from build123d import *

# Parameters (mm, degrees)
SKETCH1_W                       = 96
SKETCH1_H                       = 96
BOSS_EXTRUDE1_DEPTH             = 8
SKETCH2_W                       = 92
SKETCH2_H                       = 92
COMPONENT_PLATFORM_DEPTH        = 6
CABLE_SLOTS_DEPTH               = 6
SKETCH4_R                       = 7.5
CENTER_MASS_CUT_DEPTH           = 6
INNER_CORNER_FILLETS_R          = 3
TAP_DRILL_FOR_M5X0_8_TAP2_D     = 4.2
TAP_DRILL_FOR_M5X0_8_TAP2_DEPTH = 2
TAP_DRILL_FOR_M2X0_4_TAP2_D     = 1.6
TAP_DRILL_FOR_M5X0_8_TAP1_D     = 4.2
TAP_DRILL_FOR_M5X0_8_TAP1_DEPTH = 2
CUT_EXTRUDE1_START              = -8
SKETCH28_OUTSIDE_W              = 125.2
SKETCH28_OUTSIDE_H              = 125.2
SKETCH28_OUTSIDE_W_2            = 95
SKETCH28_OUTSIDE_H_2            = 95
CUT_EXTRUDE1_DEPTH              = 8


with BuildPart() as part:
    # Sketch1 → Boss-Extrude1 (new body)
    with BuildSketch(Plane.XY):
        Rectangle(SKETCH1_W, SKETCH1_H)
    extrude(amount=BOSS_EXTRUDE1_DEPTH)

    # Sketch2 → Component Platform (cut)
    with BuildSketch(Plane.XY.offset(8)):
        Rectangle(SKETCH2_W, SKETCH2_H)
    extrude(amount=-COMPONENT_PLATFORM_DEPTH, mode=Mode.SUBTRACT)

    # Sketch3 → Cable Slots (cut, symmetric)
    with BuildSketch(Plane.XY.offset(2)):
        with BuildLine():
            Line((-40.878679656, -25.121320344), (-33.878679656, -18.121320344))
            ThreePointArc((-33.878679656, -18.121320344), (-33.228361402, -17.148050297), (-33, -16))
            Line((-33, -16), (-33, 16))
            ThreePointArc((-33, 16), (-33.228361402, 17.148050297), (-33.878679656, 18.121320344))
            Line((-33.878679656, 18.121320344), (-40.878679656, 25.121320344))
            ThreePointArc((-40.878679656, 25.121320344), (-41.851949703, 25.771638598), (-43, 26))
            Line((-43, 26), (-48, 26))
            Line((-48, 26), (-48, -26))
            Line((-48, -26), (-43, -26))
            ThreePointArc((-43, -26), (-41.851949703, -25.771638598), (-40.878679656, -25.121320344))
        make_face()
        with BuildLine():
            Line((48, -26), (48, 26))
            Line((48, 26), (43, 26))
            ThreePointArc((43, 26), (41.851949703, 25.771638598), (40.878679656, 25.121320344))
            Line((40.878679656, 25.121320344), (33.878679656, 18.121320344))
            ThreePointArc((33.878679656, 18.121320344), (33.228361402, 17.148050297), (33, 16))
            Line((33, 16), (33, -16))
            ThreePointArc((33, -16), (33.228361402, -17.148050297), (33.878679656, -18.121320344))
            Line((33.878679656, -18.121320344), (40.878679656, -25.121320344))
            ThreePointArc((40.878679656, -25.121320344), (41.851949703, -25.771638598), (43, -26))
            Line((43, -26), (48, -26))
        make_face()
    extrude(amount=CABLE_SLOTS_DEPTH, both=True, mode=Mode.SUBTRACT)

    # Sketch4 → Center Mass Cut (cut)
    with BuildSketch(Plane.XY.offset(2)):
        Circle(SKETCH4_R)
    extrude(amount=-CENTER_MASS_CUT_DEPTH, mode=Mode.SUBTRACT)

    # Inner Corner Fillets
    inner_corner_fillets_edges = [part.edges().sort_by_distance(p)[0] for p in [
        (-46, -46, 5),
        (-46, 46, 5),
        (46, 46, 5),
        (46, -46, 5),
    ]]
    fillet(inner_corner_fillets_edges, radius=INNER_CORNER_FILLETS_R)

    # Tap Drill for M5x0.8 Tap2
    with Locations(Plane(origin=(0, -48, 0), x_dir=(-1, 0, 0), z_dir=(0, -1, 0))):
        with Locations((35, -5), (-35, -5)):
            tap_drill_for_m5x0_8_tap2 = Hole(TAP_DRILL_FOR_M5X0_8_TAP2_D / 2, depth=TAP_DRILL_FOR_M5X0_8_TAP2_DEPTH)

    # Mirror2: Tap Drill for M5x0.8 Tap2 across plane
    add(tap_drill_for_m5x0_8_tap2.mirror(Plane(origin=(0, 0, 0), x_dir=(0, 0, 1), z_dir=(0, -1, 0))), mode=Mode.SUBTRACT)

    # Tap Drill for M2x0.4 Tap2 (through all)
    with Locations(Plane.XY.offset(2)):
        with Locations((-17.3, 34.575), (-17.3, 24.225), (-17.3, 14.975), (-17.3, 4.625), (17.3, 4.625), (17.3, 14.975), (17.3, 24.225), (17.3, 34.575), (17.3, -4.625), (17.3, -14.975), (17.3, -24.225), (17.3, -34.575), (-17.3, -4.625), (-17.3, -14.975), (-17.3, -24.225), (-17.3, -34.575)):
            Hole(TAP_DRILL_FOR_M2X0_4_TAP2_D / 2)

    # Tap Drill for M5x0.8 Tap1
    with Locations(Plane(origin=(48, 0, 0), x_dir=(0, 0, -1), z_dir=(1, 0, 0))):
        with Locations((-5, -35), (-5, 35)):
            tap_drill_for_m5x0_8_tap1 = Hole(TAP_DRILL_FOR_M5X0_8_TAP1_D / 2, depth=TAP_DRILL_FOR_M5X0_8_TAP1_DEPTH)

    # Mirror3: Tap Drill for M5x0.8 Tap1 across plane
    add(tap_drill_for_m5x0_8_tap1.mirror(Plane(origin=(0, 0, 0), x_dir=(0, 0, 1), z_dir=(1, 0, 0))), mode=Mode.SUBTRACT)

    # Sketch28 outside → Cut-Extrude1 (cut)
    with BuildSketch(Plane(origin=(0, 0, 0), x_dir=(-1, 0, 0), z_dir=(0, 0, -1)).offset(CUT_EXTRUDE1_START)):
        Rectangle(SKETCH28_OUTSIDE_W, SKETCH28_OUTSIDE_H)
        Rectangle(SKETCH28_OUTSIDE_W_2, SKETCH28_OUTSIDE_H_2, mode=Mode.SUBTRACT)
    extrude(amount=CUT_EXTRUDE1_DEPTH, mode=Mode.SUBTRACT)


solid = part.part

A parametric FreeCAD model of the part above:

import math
import FreeCAD as App
import Part
import Sketcher
from FreeCAD import Vector
Q = App.Units.Quantity


def edges_at(feature, points):
    """Names of the edges that pass closest to the given points."""
    edges = feature.Shape.Edges
    near = lambda p: min(range(len(edges)), key=lambda i: edges[i].distToShape(Part.Vertex(*p))[0])
    return sorted({f"Edge{near(p) + 1}" for p in points})


def add_polygon(sketch, points):
    """Adds a closed chain of lines whose ends are joined by coincident constraints."""
    first, n = sketch.GeometryCount, len(points)
    for a, b in zip(points, points[1:] + points[:1]):
        sketch.addGeometry(Part.LineSegment(App.Vector(*a, 0), App.Vector(*b, 0)), False)
    for i in range(n):
        sketch.addConstraint(Sketcher.Constraint("Coincident", first + i, 2, first + (i + 1) % n, 1))

doc = App.newDocument("Part")
params = doc.addObject("Spreadsheet::Sheet", "Params")
for row, (alias, value) in enumerate([
    ("sketch1_width", "96 mm"),
    ("pad1_length", "8 mm"),
    ("sketch2_width", "92 mm"),
    ("pocket1_length", "6 mm"),
    ("sketch3_radius", "3 mm"),
    ("sketch3_width", "5 mm"),
    ("sketch3_height", "32 mm"),
    ("sketch3_height2", "52 mm"),
    ("pocket2_length", "12 mm"),
    ("sketch4_diameter", "15 mm"),
    ("pocket3_length", "6 mm"),
    ("fillet_radius", "3 mm"),
    ("sketch5_diameter", "4.2 mm"),
    ("hole_diameter", "4.2 mm"),
    ("hole_depth", "2 mm"),
    ("sketch6_diameter", "1.6 mm"),
    ("hole2_diameter", "1.6 mm"),
    ("sketch7_diameter", "4.2 mm"),
    ("hole3_diameter", "4.2 mm"),
    ("hole3_depth", "2 mm"),
    ("sketch8_width", "95 mm"),
    ("sketch8_width2", "125.2 mm"),
    ("pocket4_length", "8 mm"),
], start=1):
    params.set(f"A{row}", alias)
    params.set(f"B{row}", "=" + value)
    params.setAlias(f"B{row}", alias)

body = doc.addObject("PartDesign::Body", "Body")

# Sketch on XY plane
sketch1 = body.newObject("Sketcher::SketchObject", "Sketch")
sketch1.AttachmentSupport = (doc.getObject("XY_Plane"), [""])
sketch1.MapMode = "FlatFace"
add_polygon(sketch1, [(-48, 48), (-48, -48), (48, -48), (48, 48)])  # lines 0-3
sketch1.addConstraint(Sketcher.Constraint("Vertical", 0))
sketch1.addConstraint(Sketcher.Constraint("Horizontal", 1))
sketch1.addConstraint(Sketcher.Constraint("Vertical", 2))
sketch1.addConstraint(Sketcher.Constraint("Horizontal", 3))
sketch1.addConstraint(Sketcher.Constraint("Symmetric", 0, 2, 2, 2, -1, 1))
sketch1.addConstraint(Sketcher.Constraint("Equal", 3, 0))
sketch1.addConstraint(Sketcher.Constraint("DistanceX", 1, 1, 1, 2, Q("96 mm")))
sketch1.setExpression("Constraints[10]", "Params.sketch1_width")
pad1 = body.newObject("PartDesign::Pad", "Pad")
pad1.Profile = sketch1
pad1.setExpression("Length", "Params.pad1_length")

# Sketch on XY plane
sketch2 = body.newObject("Sketcher::SketchObject", "Sketch001")
sketch2.AttachmentSupport = (doc.getObject("XY_Plane"), [""])
sketch2.MapMode = "FlatFace"
sketch2.AttachmentOffset = App.Placement(Vector(0, 0, 8), App.Rotation())
add_polygon(sketch2, [(-46, 46), (-46, -46), (46, -46), (46, 46)])  # lines 0-3
sketch2.addConstraint(Sketcher.Constraint("Vertical", 0))
sketch2.addConstraint(Sketcher.Constraint("Horizontal", 1))
sketch2.addConstraint(Sketcher.Constraint("Vertical", 2))
sketch2.addConstraint(Sketcher.Constraint("Horizontal", 3))
sketch2.addConstraint(Sketcher.Constraint("Symmetric", 0, 2, 2, 2, -1, 1))
sketch2.addConstraint(Sketcher.Constraint("Equal", 3, 0))
sketch2.addConstraint(Sketcher.Constraint("DistanceX", 1, 1, 1, 2, Q("92 mm")))
sketch2.setExpression("Constraints[10]", "Params.sketch2_width")
pocket1 = body.newObject("PartDesign::Pocket", "Pocket")
pocket1.Profile = sketch2
pocket1.setExpression("Length", "Params.pocket1_length")

# Sketch on XY plane
sketch3 = body.newObject("Sketcher::SketchObject", "Sketch002")
sketch3.AttachmentSupport = (doc.getObject("XY_Plane"), [""])
sketch3.MapMode = "FlatFace"
sketch3.AttachmentOffset = App.Placement(Vector(0, 0, 2), App.Rotation())
sketch3.addGeometry(Part.LineSegment(Vector(-40.9, -25.1, 0), Vector(-33.9, -18.1, 0)), False)
sketch3.addGeometry(Part.ArcOfCircle(Part.Circle(Vector(-36, -16, 0), Vector(0, 0, 1), 3), math.radians(-45), math.radians(0)), False)
sketch3.addGeometry(Part.LineSegment(Vector(-33, -16, 0), Vector(-33, 16, 0)), False)
sketch3.addGeometry(Part.ArcOfCircle(Part.Circle(Vector(-36, 16, 0), Vector(0, 0, 1), 3), math.radians(0), math.radians(45)), False)
sketch3.addGeometry(Part.LineSegment(Vector(-33.9, 18.1, 0), Vector(-40.9, 25.1, 0)), False)
sketch3.addGeometry(Part.ArcOfCircle(Part.Circle(Vector(-43, 23, 0), Vector(0, 0, 1), 3), math.radians(45), math.radians(90)), False)
sketch3.addGeometry(Part.LineSegment(Vector(-43, 26, 0), Vector(-48, 26, 0)), False)
sketch3.addGeometry(Part.LineSegment(Vector(-48, 26, 0), Vector(-48, -26, 0)), False)
sketch3.addGeometry(Part.LineSegment(Vector(-48, -26, 0), Vector(-43, -26, 0)), False)
sketch3.addGeometry(Part.ArcOfCircle(Part.Circle(Vector(-43, -23, 0), Vector(0, 0, 1), 3), math.radians(-90), math.radians(-45)), False)
sketch3.addGeometry(Part.LineSegment(Vector(48, -26, 0), Vector(48, 26, 0)), False)
sketch3.addGeometry(Part.LineSegment(Vector(48, 26, 0), Vector(43, 26, 0)), False)
sketch3.addGeometry(Part.ArcOfCircle(Part.Circle(Vector(43, 23, 0), Vector(0, 0, 1), 3), math.radians(90), math.radians(135)), False)
sketch3.addGeometry(Part.LineSegment(Vector(40.9, 25.1, 0), Vector(33.9, 18.1, 0)), False)
sketch3.addGeometry(Part.ArcOfCircle(Part.Circle(Vector(36, 16, 0), Vector(0, 0, 1), 3), math.radians(135), math.radians(180)), False)
sketch3.addGeometry(Part.LineSegment(Vector(33, 16, 0), Vector(33, -16, 0)), False)
sketch3.addGeometry(Part.ArcOfCircle(Part.Circle(Vector(36, -16, 0), Vector(0, 0, 1), 3), math.radians(180), math.radians(225)), False)
sketch3.addGeometry(Part.LineSegment(Vector(33.9, -18.1, 0), Vector(40.9, -25.1, 0)), False)
sketch3.addGeometry(Part.ArcOfCircle(Part.Circle(Vector(43, -23, 0), Vector(0, 0, 1), 3), math.radians(-135), math.radians(-90)), False)
sketch3.addGeometry(Part.LineSegment(Vector(43, -26, 0), Vector(48, -26, 0)), False)
sketch3.addConstraint(Sketcher.Constraint("Tangent", 0, 2, 1, 1))
sketch3.addConstraint(Sketcher.Constraint("Tangent", 1, 2, 2, 1))
sketch3.addConstraint(Sketcher.Constraint("Tangent", 2, 2, 3, 1))
sketch3.addConstraint(Sketcher.Constraint("Tangent", 3, 2, 4, 1))
sketch3.addConstraint(Sketcher.Constraint("Tangent", 4, 2, 5, 1))
sketch3.addConstraint(Sketcher.Constraint("Tangent", 5, 2, 6, 1))
sketch3.addConstraint(Sketcher.Constraint("Coincident", 6, 2, 7, 1))
sketch3.addConstraint(Sketcher.Constraint("Coincident", 7, 2, 8, 1))
sketch3.addConstraint(Sketcher.Constraint("Tangent", 8, 2, 9, 1))
sketch3.addConstraint(Sketcher.Constraint("Tangent", 9, 2, 0, 1))
sketch3.addConstraint(Sketcher.Constraint("Coincident", 10, 2, 11, 1))
sketch3.addConstraint(Sketcher.Constraint("Tangent", 11, 2, 12, 1))
sketch3.addConstraint(Sketcher.Constraint("Tangent", 12, 2, 13, 1))
sketch3.addConstraint(Sketcher.Constraint("Tangent", 13, 2, 14, 1))
sketch3.addConstraint(Sketcher.Constraint("Tangent", 14, 2, 15, 1))
sketch3.addConstraint(Sketcher.Constraint("Tangent", 15, 2, 16, 1))
sketch3.addConstraint(Sketcher.Constraint("Tangent", 16, 2, 17, 1))
sketch3.addConstraint(Sketcher.Constraint("Tangent", 17, 2, 18, 1))
sketch3.addConstraint(Sketcher.Constraint("Tangent", 18, 2, 19, 1))
sketch3.addConstraint(Sketcher.Constraint("Coincident", 19, 2, 10, 1))
sketch3.addConstraint(Sketcher.Constraint("Vertical", 2))
sketch3.addConstraint(Sketcher.Constraint("Horizontal", 6))
sketch3.addConstraint(Sketcher.Constraint("Vertical", 7))
sketch3.addConstraint(Sketcher.Constraint("Horizontal", 8))
sketch3.addConstraint(Sketcher.Constraint("Vertical", 10))
sketch3.addConstraint(Sketcher.Constraint("Horizontal", 11))
sketch3.addConstraint(Sketcher.Constraint("Vertical", 15))
sketch3.addConstraint(Sketcher.Constraint("Horizontal", 19))
sketch3.addConstraint(Sketcher.Constraint("Equal", 1, 3))
sketch3.addConstraint(Sketcher.Constraint("Equal", 3, 5))
sketch3.addConstraint(Sketcher.Constraint("Equal", 5, 9))
sketch3.addConstraint(Sketcher.Constraint("Equal", 9, 12))
sketch3.addConstraint(Sketcher.Constraint("Equal", 12, 14))
sketch3.addConstraint(Sketcher.Constraint("Equal", 14, 16))
sketch3.addConstraint(Sketcher.Constraint("Equal", 16, 18))
sketch3.addConstraint(Sketcher.Constraint("Symmetric", 9, 3, 12, 3, -1, 1))
sketch3.addConstraint(Sketcher.Constraint("Symmetric", 1, 3, 14, 3, -1, 1))
sketch3.addConstraint(Sketcher.Constraint("Symmetric", 5, 3, 18, 3, -1, 1))
sketch3.addConstraint(Sketcher.Constraint("Symmetric", 5, 3, 12, 3, -2))
sketch3.addConstraint(Sketcher.Constraint("Perpendicular", 0, 4))
sketch3.addConstraint(Sketcher.Constraint("Perpendicular", 13, 17))
sketch3.addConstraint(Sketcher.Constraint("Horizontal", 3, 3, 14, 3))
sketch3.addConstraint(Sketcher.Constraint("Equal", 8, 11))
sketch3.addConstraint(Sketcher.Constraint("Radius", 1, Q("3 mm")))
sketch3.addConstraint(Sketcher.Constraint("DistanceX", 6, 2, 6, 1, Q("5 mm")))
sketch3.addConstraint(Sketcher.Constraint("DistanceY", 2, 1, 2, 2, Q("32 mm")))
sketch3.addConstraint(Sketcher.Constraint("DistanceY", 7, 2, 7, 1, Q("52 mm")))
sketch3.addConstraint(Sketcher.Constraint("DistanceX", 1, 3, -1, 1, Q("36 mm")))
sketch3.setExpression("Constraints[43]", "Params.sketch3_radius")
sketch3.setExpression("Constraints[44]", "Params.sketch3_width")
sketch3.setExpression("Constraints[45]", "Params.sketch3_height")
sketch3.setExpression("Constraints[46]", "Params.sketch3_height2")
pocket2 = body.newObject("PartDesign::Pocket", "Pocket001")
pocket2.Profile = sketch3
pocket2.setExpression("Length", "Params.pocket2_length")
pocket2.Midplane = True

# Sketch on XY plane
sketch4 = body.newObject("Sketcher::SketchObject", "Sketch003")
sketch4.AttachmentSupport = (doc.getObject("XY_Plane"), [""])
sketch4.MapMode = "FlatFace"
sketch4.AttachmentOffset = App.Placement(Vector(0, 0, 2), App.Rotation())
sketch4.addGeometry(Part.Circle(Vector(0, 0, 0), Vector(0, 0, 1), 8), False)
sketch4.addConstraint(Sketcher.Constraint("Coincident", 0, 3, -1, 1))
sketch4.addConstraint(Sketcher.Constraint("Diameter", 0, Q("15 mm")))
sketch4.setExpression("Constraints[1]", "Params.sketch4_diameter")
pocket3 = body.newObject("PartDesign::Pocket", "Pocket002")
pocket3.Profile = sketch4
pocket3.setExpression("Length", "Params.pocket3_length")
doc.recompute()

fillet = body.newObject("PartDesign::Fillet", "Fillet")
fillet.Base = (pocket3, edges_at(pocket3, [
    (-46, -46, 5),
    (-46, 46, 5),
    (46, 46, 5),
    (46, -46, 5),
]))
fillet.setExpression("Radius", "Params.fillet_radius")

# Sketch on XZ plane
sketch5 = body.newObject("Sketcher::SketchObject", "Sketch004")
sketch5.AttachmentSupport = (doc.getObject("XZ_Plane"), [""])
sketch5.MapMode = "FlatFace"
sketch5.AttachmentOffset = App.Placement(Vector(0, 0, 48), App.Rotation())
sketch5.addGeometry(Part.Circle(Vector(-35, 5, 0), Vector(0, 0, 1), 2.1), False)
sketch5.addGeometry(Part.Circle(Vector(35, 5, 0), Vector(0, 0, 1), 2.1), False)
sketch5.addConstraint(Sketcher.Constraint("Equal", 0, 1))
sketch5.addConstraint(Sketcher.Constraint("Symmetric", 0, 3, 1, 3, -2))
sketch5.addConstraint(Sketcher.Constraint("Diameter", 0, Q("4.2 mm")))
sketch5.addConstraint(Sketcher.Constraint("DistanceX", 0, 3, -1, 1, Q("35 mm")))
sketch5.addConstraint(Sketcher.Constraint("DistanceY", -1, 1, 0, 3, Q("5 mm")))
sketch5.setExpression("Constraints[2]", "Params.sketch5_diameter")
doc.recompute()
hole = body.newObject("PartDesign::Hole", "Hole")
hole.Profile = sketch5
hole.ThreadType = "None"
hole.setExpression("Diameter", "Params.hole_diameter")
hole.DepthType = "Dimension"
hole.setExpression("Depth", "Params.hole_depth")
hole.DrillPoint = "Flat"
doc.recompute()

mirrored = body.newObject("PartDesign::Mirrored", "Mirrored")
mirrored.Originals = [hole]
mirrored.MirrorPlane = (doc.getObject("XZ_Plane"), [""])
body.Tip = mirrored

# Sketch on XY plane
sketch6 = body.newObject("Sketcher::SketchObject", "Sketch005")
sketch6.AttachmentSupport = (doc.getObject("XY_Plane"), [""])
sketch6.MapMode = "FlatFace"
sketch6.AttachmentOffset = App.Placement(Vector(0, 0, 2), App.Rotation())
sketch6.addGeometry(Part.Circle(Vector(-17.3, 34.6, 0), Vector(0, 0, 1), 0.8), False)
sketch6.addGeometry(Part.Circle(Vector(-17.3, 24.2, 0), Vector(0, 0, 1), 0.8), False)
sketch6.addGeometry(Part.Circle(Vector(-17.3, 15, 0), Vector(0, 0, 1), 0.8), False)
sketch6.addGeometry(Part.Circle(Vector(-17.3, 4.6, 0), Vector(0, 0, 1), 0.8), False)
sketch6.addGeometry(Part.Circle(Vector(17.3, 4.6, 0), Vector(0, 0, 1), 0.8), False)
sketch6.addGeometry(Part.Circle(Vector(17.3, 15, 0), Vector(0, 0, 1), 0.8), False)
sketch6.addGeometry(Part.Circle(Vector(17.3, 24.2, 0), Vector(0, 0, 1), 0.8), False)
sketch6.addGeometry(Part.Circle(Vector(17.3, 34.6, 0), Vector(0, 0, 1), 0.8), False)
sketch6.addGeometry(Part.Circle(Vector(17.3, -4.6, 0), Vector(0, 0, 1), 0.8), False)
sketch6.addGeometry(Part.Circle(Vector(17.3, -15, 0), Vector(0, 0, 1), 0.8), False)
sketch6.addGeometry(Part.Circle(Vector(17.3, -24.2, 0), Vector(0, 0, 1), 0.8), False)
sketch6.addGeometry(Part.Circle(Vector(17.3, -34.6, 0), Vector(0, 0, 1), 0.8), False)
sketch6.addGeometry(Part.Circle(Vector(-17.3, -4.6, 0), Vector(0, 0, 1), 0.8), False)
sketch6.addGeometry(Part.Circle(Vector(-17.3, -15, 0), Vector(0, 0, 1), 0.8), False)
sketch6.addGeometry(Part.Circle(Vector(-17.3, -24.2, 0), Vector(0, 0, 1), 0.8), False)
sketch6.addGeometry(Part.Circle(Vector(-17.3, -34.6, 0), Vector(0, 0, 1), 0.8), False)
sketch6.addConstraint(Sketcher.Constraint("Equal", 0, 1))
sketch6.addConstraint(Sketcher.Constraint("Equal", 1, 2))
sketch6.addConstraint(Sketcher.Constraint("Equal", 2, 3))
sketch6.addConstraint(Sketcher.Constraint("Equal", 3, 4))
sketch6.addConstraint(Sketcher.Constraint("Equal", 4, 5))
sketch6.addConstraint(Sketcher.Constraint("Equal", 5, 6))
sketch6.addConstraint(Sketcher.Constraint("Equal", 6, 7))
sketch6.addConstraint(Sketcher.Constraint("Equal", 7, 8))
sketch6.addConstraint(Sketcher.Constraint("Equal", 8, 9))
sketch6.addConstraint(Sketcher.Constraint("Equal", 9, 10))
sketch6.addConstraint(Sketcher.Constraint("Equal", 10, 11))
sketch6.addConstraint(Sketcher.Constraint("Equal", 11, 12))
sketch6.addConstraint(Sketcher.Constraint("Equal", 12, 13))
sketch6.addConstraint(Sketcher.Constraint("Equal", 13, 14))
sketch6.addConstraint(Sketcher.Constraint("Equal", 14, 15))
sketch6.addConstraint(Sketcher.Constraint("Symmetric", 3, 3, 8, 3, -1, 1))
sketch6.addConstraint(Sketcher.Constraint("Symmetric", 2, 3, 9, 3, -1, 1))
sketch6.addConstraint(Sketcher.Constraint("Symmetric", 1, 3, 10, 3, -1, 1))
sketch6.addConstraint(Sketcher.Constraint("Symmetric", 0, 3, 11, 3, -1, 1))
sketch6.addConstraint(Sketcher.Constraint("Symmetric", 4, 3, 12, 3, -1, 1))
sketch6.addConstraint(Sketcher.Constraint("Symmetric", 5, 3, 13, 3, -1, 1))
sketch6.addConstraint(Sketcher.Constraint("Symmetric", 6, 3, 14, 3, -1, 1))
sketch6.addConstraint(Sketcher.Constraint("Symmetric", 7, 3, 15, 3, -1, 1))
sketch6.addConstraint(Sketcher.Constraint("Symmetric", 3, 3, 4, 3, -2))
sketch6.addConstraint(Sketcher.Constraint("Symmetric", 2, 3, 5, 3, -2))
sketch6.addConstraint(Sketcher.Constraint("Symmetric", 1, 3, 6, 3, -2))
sketch6.addConstraint(Sketcher.Constraint("Symmetric", 0, 3, 7, 3, -2))
sketch6.addConstraint(Sketcher.Constraint("Vertical", 0, 3, 1, 3))
sketch6.addConstraint(Sketcher.Constraint("Vertical", 1, 3, 2, 3))
sketch6.addConstraint(Sketcher.Constraint("Vertical", 2, 3, 3, 3))
sketch6.addConstraint(Sketcher.Constraint("Diameter", 0, Q("1.6 mm")))
sketch6.addConstraint(Sketcher.Constraint("DistanceX", 0, 3, -1, 1, Q("17.3 mm")))
sketch6.addConstraint(Sketcher.Constraint("DistanceY", 2, 3, 0, 3, Q("19.6 mm")))
sketch6.addConstraint(Sketcher.Constraint("DistanceY", 3, 3, 1, 3, Q("19.6 mm")))
sketch6.addConstraint(Sketcher.Constraint("DistanceY", 8, 3, 5, 3, Q("19.6 mm")))
sketch6.addConstraint(Sketcher.Constraint("DistanceY", 1, 3, 0, 3, Q("10.35 mm")))
sketch6.setExpression("Constraints[30]", "Params.sketch6_diameter")
doc.recompute()
hole2 = body.newObject("PartDesign::Hole", "Hole001")
hole2.Profile = sketch6
hole2.ThreadType = "None"
hole2.setExpression("Diameter", "Params.hole2_diameter")
hole2.DepthType = "ThroughAll"

# Sketch on YZ plane
sketch7 = body.newObject("Sketcher::SketchObject", "Sketch006")
sketch7.AttachmentSupport = (doc.getObject("YZ_Plane"), [""])
sketch7.MapMode = "FlatFace"
sketch7.AttachmentOffset = App.Placement(Vector(0, 0, 48), App.Rotation())
sketch7.addGeometry(Part.Circle(Vector(-35, 5, 0), Vector(0, 0, 1), 2.1), False)
sketch7.addGeometry(Part.Circle(Vector(35, 5, 0), Vector(0, 0, 1), 2.1), False)
sketch7.addConstraint(Sketcher.Constraint("Equal", 0, 1))
sketch7.addConstraint(Sketcher.Constraint("Symmetric", 0, 3, 1, 3, -2))
sketch7.addConstraint(Sketcher.Constraint("Diameter", 0, Q("4.2 mm")))
sketch7.addConstraint(Sketcher.Constraint("DistanceX", 0, 3, -1, 1, Q("35 mm")))
sketch7.addConstraint(Sketcher.Constraint("DistanceY", -1, 1, 0, 3, Q("5 mm")))
sketch7.setExpression("Constraints[2]", "Params.sketch7_diameter")
doc.recompute()
hole3 = body.newObject("PartDesign::Hole", "Hole002")
hole3.Profile = sketch7
hole3.ThreadType = "None"
hole3.setExpression("Diameter", "Params.hole3_diameter")
hole3.DepthType = "Dimension"
hole3.setExpression("Depth", "Params.hole3_depth")
hole3.DrillPoint = "Flat"
doc.recompute()

mirrored2 = body.newObject("PartDesign::Mirrored", "Mirrored001")
mirrored2.Originals = [hole3]
mirrored2.MirrorPlane = (doc.getObject("YZ_Plane"), [""])
body.Tip = mirrored2

# Sketch on XY plane
sketch8 = body.newObject("Sketcher::SketchObject", "Sketch007")
sketch8.AttachmentSupport = (doc.getObject("XY_Plane"), [""])
sketch8.MapMode = "FlatFace"
sketch8.AttachmentOffset = App.Placement(Vector(0, 0, 8), App.Rotation())
add_polygon(sketch8, [(63, 63), (63, -63), (-63, -63), (-63, 63)])  # lines 0-3
add_polygon(sketch8, [(-48, -48), (48, -48), (48, 48), (-48, 48)])  # lines 4-7
sketch8.addConstraint(Sketcher.Constraint("Vertical", 0))
sketch8.addConstraint(Sketcher.Constraint("Horizontal", 1))
sketch8.addConstraint(Sketcher.Constraint("Vertical", 2))
sketch8.addConstraint(Sketcher.Constraint("Horizontal", 3))
sketch8.addConstraint(Sketcher.Constraint("Horizontal", 4))
sketch8.addConstraint(Sketcher.Constraint("Vertical", 5))
sketch8.addConstraint(Sketcher.Constraint("Horizontal", 6))
sketch8.addConstraint(Sketcher.Constraint("Vertical", 7))
sketch8.addConstraint(Sketcher.Constraint("Symmetric", 0, 2, 2, 2, -1, 1))
sketch8.addConstraint(Sketcher.Constraint("Symmetric", 4, 2, 6, 2, -1, 1))
sketch8.addConstraint(Sketcher.Constraint("Equal", 3, 0))
sketch8.addConstraint(Sketcher.Constraint("Equal", 6, 5))
sketch8.addConstraint(Sketcher.Constraint("DistanceX", 4, 1, 4, 2, Q("95 mm")))
sketch8.addConstraint(Sketcher.Constraint("DistanceX", 1, 2, 1, 1, Q("125.2 mm")))
sketch8.setExpression("Constraints[20]", "Params.sketch8_width")
sketch8.setExpression("Constraints[21]", "Params.sketch8_width2")
pocket4 = body.newObject("PartDesign::Pocket", "Pocket003")
pocket4.Profile = sketch8
pocket4.setExpression("Length", "Params.pocket4_length")

doc.recompute()
